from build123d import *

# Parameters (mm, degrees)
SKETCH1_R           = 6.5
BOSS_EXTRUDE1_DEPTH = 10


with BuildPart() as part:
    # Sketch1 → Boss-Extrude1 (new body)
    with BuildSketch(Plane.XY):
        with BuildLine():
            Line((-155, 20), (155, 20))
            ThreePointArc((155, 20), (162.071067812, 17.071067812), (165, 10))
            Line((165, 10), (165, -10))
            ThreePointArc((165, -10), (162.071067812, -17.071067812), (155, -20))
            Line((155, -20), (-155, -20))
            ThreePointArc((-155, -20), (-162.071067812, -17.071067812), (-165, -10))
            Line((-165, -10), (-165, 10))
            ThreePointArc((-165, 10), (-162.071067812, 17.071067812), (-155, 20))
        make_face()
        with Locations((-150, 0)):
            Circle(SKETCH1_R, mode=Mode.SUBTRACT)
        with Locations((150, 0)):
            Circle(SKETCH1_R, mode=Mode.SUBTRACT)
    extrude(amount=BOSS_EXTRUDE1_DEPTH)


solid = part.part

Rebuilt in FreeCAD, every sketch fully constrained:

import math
import FreeCAD as App
import Part
import Sketcher

V = App.Vector

doc = App.newDocument("Part")
params = doc.addObject("Spreadsheet::Sheet", "Params")
for row, (alias, value) in enumerate([
    ("sketch1_diameter", "13 mm"),
    ("sketch1_radius", "10 mm"),
    ("sketch1_width", "310 mm"),
    ("sketch1_height", "20 mm"),
    ("pad1_length", "10 mm"),
], start=1):
    params.set(f"A{row}", alias)
    params.set(f"B{row}", "=" + value)
    params.setAlias(f"B{row}", alias)

body = doc.addObject("PartDesign::Body", "Body")

# Sketch on XY plane
sketch1 = doc.addObject("Sketcher::SketchObject", "Sketch")
body.addObject(sketch1)
sketch1.AttachmentSupport = (doc.XY_Plane, [""])
sketch1.MapMode = "FlatFace"
sketch1.addGeometry(Part.LineSegment(V(155, 20, 0), V(-155, 20, 0)), False)
sketch1.addGeometry(Part.ArcOfCircle(Part.Circle(V(-155, 10, 0), V(0, 0, 1), 10), math.radians(90), math.radians(180)), False)
sketch1.addGeometry(Part.LineSegment(V(-165, 10, 0), V(-165, -10, 0)), False)
sketch1.addGeometry(Part.ArcOfCircle(Part.Circle(V(-155, -10, 0), V(0, 0, 1), 10), math.radians(180), math.radians(270)), False)
sketch1.addGeometry(Part.LineSegment(V(-155, -20, 0), V(155, -20, 0)), False)
sketch1.addGeometry(Part.ArcOfCircle(Part.Circle(V(155, -10, 0), V(0, 0, 1), 10), math.radians(-90), math.radians(0)), False)
sketch1.addGeometry(Part.LineSegment(V(165, -10, 0), V(165, 10, 0)), False)
sketch1.addGeometry(Part.ArcOfCircle(Part.Circle(V(155, 10, 0), V(0, 0, 1), 10), math.radians(0), math.radians(90)), False)
sketch1.addGeometry(Part.Circle(V(150, 0, 0), V(0, 0, 1), 6), False)
sketch1.addGeometry(Part.Circle(V(-150, 0, 0), V(0, 0, 1), 6), False)
sketch1.addConstraint(Sketcher.Constraint("Tangent", 0, 2, 1, 1))
sketch1.addConstraint(Sketcher.Constraint("Tangent", 1, 2, 2, 1))
sketch1.addConstraint(Sketcher.Constraint("Tangent", 2, 2, 3, 1))
sketch1.addConstraint(Sketcher.Constraint("Tangent", 3, 2, 4, 1))
sketch1.addConstraint(Sketcher.Constraint("Tangent", 4, 2, 5, 1))
sketch1.addConstraint(Sketcher.Constraint("Tangent", 5, 2, 6, 1))
sketch1.addConstraint(Sketcher.Constraint("Tangent", 6, 2, 7, 1))
sketch1.addConstraint(Sketcher.Constraint("Tangent", 7, 2, 0, 1))
sketch1.addConstraint(Sketcher.Constraint("Horizontal", 0))
sketch1.addConstraint(Sketcher.Constraint("Vertical", 2))
sketch1.addConstraint(Sketcher.Constraint("Horizontal", 4))
sketch1.addConstraint(Sketcher.Constraint("Vertical", 6))
sketch1.addConstraint(Sketcher.Constraint("Equal", 1, 3))
sketch1.addConstraint(Sketcher.Constraint("Equal", 3, 5))
sketch1.addConstraint(Sketcher.Constraint("Equal", 5, 7))
sketch1.addConstraint(Sketcher.Constraint("Equal", 8, 9))
sketch1.addConstraint(Sketcher.Constraint("Symmetric", 1, 3, 5, 3, -1, 1))
sketch1.addConstraint(Sketcher.Constraint("Symmetric", 8, 3, 9, 3, -1, 1))
sketch1.addConstraint(Sketcher.Constraint("PointOnObject", 8, 3, -1))
sketch1.addConstraint(Sketcher.Constraint("Diameter", 8, 13.0))
sketch1.addConstraint(Sketcher.Constraint("Radius", 1, 10.0))
sketch1.addConstraint(Sketcher.Constraint("DistanceX", 0, 2, 0, 1, 310.0))
sketch1.addConstraint(Sketcher.Constraint("DistanceY", 2, 2, 2, 1, 20.0))
sketch1.addConstraint(Sketcher.Constraint("DistanceX", -1, 1, 8, 3, 150.0))
sketch1.setExpression("Constraints[19]", "Params.sketch1_diameter")
sketch1.setExpression("Constraints[20]", "Params.sketch1_radius")
sketch1.setExpression("Constraints[21]", "Params.sketch1_width")
sketch1.setExpression("Constraints[22]", "Params.sketch1_height")
pad1 = doc.addObject("PartDesign::Pad", "Pad")
body.addObject(pad1)
pad1.Profile = sketch1
pad1.setExpression("Length", "Params.pad1_length")

doc.recompute()
